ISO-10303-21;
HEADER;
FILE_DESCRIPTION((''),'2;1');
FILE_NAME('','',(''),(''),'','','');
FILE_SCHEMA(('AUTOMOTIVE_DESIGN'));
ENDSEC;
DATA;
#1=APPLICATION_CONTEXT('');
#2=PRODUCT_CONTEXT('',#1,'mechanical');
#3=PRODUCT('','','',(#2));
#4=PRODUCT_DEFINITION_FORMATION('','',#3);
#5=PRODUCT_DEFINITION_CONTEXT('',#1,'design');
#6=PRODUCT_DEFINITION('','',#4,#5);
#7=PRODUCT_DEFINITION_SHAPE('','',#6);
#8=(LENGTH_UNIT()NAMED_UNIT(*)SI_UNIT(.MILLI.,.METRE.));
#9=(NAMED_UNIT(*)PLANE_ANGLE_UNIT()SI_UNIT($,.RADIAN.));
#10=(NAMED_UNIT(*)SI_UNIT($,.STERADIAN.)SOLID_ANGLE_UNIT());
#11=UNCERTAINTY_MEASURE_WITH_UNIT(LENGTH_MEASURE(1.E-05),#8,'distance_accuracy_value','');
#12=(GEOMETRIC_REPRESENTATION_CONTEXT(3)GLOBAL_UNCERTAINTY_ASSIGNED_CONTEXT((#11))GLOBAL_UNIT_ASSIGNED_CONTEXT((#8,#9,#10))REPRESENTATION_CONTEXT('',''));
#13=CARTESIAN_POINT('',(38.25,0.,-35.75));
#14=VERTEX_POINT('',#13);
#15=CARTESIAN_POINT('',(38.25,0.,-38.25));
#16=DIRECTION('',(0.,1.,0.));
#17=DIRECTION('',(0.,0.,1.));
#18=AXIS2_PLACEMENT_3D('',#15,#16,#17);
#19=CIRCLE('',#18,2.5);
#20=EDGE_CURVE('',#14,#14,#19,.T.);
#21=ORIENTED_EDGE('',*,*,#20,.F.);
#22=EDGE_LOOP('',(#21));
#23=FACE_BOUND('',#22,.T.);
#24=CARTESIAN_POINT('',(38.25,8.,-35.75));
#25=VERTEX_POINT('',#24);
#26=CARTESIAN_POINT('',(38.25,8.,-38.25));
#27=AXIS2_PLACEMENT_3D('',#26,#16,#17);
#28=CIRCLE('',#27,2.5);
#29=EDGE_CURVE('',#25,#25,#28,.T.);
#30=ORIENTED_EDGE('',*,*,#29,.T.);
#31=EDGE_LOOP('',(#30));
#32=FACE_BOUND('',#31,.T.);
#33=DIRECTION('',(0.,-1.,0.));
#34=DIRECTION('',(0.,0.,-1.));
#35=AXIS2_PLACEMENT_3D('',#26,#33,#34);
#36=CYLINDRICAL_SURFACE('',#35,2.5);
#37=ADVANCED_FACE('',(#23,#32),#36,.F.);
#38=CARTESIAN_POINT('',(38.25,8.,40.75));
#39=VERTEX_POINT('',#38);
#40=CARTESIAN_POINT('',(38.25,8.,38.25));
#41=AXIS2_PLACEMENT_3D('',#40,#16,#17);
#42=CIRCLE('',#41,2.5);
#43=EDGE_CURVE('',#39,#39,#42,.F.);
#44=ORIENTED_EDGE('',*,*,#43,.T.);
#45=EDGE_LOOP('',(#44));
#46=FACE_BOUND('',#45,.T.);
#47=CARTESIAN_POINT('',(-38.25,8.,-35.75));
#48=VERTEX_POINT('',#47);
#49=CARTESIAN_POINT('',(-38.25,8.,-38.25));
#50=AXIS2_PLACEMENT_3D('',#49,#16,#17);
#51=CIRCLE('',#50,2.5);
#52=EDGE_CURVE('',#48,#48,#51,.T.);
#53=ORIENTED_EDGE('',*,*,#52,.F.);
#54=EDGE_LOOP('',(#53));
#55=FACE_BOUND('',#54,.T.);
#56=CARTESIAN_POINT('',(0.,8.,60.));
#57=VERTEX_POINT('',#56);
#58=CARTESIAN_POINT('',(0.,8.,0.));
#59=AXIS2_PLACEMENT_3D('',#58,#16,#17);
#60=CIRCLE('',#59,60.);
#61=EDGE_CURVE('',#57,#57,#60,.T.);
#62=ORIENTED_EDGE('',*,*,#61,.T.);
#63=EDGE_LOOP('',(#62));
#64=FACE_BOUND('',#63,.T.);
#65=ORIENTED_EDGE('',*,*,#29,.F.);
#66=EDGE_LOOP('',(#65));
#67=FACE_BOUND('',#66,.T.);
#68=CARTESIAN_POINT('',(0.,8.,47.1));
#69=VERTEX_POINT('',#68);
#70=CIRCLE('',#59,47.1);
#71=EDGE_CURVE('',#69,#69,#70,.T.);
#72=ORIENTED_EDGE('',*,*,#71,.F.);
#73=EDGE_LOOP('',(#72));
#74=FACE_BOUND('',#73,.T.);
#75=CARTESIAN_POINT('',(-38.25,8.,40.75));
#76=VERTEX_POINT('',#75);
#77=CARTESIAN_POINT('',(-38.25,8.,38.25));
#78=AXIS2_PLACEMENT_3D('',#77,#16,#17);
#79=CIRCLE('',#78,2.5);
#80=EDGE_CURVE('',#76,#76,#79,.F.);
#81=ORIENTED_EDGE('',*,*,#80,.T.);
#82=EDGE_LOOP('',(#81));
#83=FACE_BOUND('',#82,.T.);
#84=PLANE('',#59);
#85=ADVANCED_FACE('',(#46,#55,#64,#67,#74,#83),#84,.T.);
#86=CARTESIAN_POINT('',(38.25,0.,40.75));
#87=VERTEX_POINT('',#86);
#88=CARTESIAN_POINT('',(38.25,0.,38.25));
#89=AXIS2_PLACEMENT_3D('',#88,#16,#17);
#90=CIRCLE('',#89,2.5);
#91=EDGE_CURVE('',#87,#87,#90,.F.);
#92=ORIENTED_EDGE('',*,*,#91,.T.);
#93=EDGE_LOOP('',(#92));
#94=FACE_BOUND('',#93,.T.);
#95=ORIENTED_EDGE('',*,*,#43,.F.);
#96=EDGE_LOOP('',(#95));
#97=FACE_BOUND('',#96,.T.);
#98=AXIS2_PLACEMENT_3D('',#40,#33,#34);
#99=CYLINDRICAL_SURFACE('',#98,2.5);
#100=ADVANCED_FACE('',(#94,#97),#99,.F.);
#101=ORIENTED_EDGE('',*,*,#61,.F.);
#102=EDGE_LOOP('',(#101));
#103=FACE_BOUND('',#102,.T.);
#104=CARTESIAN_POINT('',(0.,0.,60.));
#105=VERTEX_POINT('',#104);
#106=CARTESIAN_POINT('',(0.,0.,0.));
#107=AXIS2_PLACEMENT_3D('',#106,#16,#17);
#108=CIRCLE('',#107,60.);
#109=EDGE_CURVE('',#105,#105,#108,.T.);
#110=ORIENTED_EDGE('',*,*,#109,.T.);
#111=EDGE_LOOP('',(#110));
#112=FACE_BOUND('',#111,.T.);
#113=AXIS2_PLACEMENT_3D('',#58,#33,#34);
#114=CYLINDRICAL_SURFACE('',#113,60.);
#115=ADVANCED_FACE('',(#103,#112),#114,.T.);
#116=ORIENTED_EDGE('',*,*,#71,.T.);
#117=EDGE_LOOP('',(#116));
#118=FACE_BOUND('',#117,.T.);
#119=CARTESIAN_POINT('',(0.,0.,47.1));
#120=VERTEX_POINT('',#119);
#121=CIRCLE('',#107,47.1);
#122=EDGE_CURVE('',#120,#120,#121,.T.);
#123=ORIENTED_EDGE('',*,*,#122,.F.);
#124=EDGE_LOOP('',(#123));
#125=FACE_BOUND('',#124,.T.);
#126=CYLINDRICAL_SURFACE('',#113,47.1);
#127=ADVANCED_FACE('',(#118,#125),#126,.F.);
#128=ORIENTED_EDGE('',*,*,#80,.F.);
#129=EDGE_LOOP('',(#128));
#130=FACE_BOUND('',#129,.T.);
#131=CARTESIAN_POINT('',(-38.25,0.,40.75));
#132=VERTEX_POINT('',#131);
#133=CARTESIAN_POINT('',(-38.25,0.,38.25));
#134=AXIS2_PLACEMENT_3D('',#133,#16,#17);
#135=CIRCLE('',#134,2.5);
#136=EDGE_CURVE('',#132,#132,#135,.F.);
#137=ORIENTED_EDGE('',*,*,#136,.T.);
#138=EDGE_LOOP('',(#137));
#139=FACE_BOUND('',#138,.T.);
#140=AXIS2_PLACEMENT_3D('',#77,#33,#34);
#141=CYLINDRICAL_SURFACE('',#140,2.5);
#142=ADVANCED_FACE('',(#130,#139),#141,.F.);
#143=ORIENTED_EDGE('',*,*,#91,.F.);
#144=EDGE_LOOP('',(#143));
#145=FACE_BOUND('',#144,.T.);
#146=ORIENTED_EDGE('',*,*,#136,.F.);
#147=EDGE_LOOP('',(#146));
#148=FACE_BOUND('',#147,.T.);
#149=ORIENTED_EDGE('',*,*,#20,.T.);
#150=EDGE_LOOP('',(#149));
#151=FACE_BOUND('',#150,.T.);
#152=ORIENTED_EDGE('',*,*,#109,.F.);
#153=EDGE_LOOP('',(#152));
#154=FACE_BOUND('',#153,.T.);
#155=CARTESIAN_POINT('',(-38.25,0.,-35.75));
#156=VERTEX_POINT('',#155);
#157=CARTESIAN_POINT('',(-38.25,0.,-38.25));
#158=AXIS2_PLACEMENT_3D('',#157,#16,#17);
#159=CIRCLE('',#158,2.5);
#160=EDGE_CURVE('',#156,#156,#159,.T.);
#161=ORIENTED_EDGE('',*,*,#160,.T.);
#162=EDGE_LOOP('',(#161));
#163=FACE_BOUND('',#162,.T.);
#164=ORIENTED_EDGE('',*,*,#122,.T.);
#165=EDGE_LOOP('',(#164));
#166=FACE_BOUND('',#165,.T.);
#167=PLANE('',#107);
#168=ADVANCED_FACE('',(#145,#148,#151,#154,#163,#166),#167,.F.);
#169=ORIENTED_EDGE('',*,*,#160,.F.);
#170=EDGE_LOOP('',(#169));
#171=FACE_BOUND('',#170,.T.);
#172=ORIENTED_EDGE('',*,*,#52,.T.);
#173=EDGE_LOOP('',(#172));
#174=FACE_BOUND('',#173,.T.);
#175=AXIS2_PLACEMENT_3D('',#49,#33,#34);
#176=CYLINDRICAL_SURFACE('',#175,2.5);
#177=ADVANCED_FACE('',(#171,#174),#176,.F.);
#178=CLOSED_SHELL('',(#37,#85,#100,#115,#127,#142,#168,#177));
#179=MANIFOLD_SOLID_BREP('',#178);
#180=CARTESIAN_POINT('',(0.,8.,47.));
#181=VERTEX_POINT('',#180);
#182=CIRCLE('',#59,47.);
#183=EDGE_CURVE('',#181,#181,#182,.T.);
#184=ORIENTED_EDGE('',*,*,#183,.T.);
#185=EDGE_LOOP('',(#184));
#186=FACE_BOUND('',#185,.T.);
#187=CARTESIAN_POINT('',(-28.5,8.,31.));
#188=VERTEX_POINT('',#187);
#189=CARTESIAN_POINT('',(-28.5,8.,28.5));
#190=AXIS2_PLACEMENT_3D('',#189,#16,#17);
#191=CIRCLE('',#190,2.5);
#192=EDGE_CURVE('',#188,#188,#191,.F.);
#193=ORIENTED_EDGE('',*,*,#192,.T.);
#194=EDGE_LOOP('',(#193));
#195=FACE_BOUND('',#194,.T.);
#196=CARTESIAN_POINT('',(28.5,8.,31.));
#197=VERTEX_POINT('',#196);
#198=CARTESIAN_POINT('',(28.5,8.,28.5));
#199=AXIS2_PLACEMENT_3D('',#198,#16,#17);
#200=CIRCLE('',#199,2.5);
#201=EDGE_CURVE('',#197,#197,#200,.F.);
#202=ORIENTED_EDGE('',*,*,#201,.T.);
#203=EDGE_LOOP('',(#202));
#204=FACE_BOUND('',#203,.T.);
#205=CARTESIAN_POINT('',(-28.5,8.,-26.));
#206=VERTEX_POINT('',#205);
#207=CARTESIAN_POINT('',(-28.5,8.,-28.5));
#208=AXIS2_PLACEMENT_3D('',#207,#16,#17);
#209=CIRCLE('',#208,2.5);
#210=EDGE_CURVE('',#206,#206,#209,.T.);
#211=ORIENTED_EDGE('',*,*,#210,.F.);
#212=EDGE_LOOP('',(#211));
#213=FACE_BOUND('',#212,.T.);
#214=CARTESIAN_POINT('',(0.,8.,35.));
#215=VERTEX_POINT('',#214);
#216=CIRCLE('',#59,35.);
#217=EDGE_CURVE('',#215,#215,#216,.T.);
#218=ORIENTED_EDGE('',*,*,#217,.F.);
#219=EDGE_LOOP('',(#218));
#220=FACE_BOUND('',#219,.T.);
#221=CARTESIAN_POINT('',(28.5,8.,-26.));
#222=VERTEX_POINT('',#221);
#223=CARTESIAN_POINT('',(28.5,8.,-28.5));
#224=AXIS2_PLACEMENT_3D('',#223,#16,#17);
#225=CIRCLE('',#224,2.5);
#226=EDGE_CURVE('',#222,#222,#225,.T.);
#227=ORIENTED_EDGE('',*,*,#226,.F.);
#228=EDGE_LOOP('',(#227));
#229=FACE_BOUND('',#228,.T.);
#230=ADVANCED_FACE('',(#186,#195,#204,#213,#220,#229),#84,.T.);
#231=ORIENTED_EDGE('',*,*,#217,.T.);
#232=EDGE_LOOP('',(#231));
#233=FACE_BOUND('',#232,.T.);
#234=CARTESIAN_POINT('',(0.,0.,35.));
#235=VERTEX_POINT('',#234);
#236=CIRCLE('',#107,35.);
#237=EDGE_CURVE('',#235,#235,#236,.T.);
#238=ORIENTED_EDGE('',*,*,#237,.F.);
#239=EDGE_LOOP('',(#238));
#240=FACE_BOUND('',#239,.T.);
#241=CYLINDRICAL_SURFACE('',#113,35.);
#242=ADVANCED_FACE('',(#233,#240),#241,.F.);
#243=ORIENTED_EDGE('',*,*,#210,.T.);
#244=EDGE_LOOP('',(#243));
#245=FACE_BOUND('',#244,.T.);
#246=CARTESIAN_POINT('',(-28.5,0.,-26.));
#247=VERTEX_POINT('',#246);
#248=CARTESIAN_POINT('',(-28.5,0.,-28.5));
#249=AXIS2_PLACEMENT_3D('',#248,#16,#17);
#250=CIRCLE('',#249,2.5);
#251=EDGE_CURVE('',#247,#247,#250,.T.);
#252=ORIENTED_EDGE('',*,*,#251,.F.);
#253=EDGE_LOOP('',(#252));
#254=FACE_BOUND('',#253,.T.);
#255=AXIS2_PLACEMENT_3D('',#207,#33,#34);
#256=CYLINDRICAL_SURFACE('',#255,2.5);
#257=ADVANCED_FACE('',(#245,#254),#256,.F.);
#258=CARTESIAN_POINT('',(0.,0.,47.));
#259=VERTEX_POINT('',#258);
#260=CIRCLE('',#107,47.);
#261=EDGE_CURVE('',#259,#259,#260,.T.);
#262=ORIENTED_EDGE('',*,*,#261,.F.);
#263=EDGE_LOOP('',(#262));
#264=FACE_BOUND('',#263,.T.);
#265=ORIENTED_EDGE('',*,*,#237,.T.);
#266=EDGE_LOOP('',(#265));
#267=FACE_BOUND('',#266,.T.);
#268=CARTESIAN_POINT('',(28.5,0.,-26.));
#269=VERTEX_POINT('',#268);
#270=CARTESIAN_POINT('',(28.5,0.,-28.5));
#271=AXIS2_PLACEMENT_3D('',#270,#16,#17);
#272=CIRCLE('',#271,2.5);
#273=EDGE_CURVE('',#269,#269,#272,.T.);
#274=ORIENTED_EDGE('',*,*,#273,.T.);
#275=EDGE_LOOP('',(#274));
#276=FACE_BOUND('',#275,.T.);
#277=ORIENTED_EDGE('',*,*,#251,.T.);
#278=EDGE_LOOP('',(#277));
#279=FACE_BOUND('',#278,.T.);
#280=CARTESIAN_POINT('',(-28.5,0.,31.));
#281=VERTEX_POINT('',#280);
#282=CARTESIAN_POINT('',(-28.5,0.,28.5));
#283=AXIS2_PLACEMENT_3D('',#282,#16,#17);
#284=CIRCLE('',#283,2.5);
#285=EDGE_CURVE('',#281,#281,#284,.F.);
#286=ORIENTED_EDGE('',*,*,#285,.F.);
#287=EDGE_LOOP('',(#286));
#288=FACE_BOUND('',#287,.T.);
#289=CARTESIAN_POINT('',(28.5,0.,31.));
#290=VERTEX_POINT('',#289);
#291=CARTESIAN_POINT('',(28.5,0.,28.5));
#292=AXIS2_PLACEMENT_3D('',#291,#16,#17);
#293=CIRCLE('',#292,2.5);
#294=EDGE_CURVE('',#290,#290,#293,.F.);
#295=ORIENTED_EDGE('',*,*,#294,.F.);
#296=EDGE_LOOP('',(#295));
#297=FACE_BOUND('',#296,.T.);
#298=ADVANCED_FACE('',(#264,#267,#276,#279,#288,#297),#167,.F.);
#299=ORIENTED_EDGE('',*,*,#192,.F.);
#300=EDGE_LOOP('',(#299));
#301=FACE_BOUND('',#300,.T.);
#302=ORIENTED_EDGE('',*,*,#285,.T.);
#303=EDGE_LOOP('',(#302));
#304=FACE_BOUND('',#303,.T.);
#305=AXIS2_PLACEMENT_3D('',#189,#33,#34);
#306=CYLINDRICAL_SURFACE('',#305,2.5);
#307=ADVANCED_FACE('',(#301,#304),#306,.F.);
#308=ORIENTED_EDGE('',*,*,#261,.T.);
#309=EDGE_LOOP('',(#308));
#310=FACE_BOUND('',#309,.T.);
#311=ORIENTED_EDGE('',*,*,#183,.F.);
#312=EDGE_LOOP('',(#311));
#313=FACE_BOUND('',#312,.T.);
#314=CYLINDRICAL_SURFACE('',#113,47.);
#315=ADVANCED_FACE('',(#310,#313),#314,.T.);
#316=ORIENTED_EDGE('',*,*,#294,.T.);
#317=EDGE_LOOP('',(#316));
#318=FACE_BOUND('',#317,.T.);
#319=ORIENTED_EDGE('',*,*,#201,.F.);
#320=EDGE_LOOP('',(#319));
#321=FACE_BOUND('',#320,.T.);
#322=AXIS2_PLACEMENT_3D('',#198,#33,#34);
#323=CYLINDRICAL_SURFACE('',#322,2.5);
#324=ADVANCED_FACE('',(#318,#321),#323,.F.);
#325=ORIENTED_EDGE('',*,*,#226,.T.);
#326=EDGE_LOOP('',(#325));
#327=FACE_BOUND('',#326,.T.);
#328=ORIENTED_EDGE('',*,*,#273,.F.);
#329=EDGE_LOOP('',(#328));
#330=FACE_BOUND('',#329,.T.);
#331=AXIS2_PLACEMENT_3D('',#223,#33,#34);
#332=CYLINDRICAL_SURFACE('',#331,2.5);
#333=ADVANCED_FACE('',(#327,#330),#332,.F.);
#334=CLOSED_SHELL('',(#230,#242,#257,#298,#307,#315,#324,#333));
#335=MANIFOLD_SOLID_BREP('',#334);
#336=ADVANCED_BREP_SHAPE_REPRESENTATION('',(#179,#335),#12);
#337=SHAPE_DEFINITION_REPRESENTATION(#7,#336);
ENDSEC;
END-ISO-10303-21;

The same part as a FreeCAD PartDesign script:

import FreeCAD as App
import Part
import Sketcher

V = App.Vector
Q = App.Units.Quantity

doc = App.newDocument("Part")
body = doc.addObject("PartDesign::Body", "Body")

# Sketch on XZ plane
sketch1 = body.newObject("Sketcher::SketchObject", "Sketch")
sketch1.AttachmentSupport = (doc.getObject("XZ_Plane"), [""])
sketch1.MapMode = "FlatFace"
sketch1.addGeometry(Part.Circle(V(0, 0, 0), V(0, 0, 1), 47), False)
sketch1.addGeometry(Part.Circle(V(-28.5, -28.5, 0), V(0, 0, 1), 2.5), False)
sketch1.addGeometry(Part.Circle(V(-28.5, 28.5, 0), V(0, 0, 1), 2.5), False)
sketch1.addGeometry(Part.Circle(V(28.5, -28.5, 0), V(0, 0, 1), 2.5), False)
sketch1.addGeometry(Part.Circle(V(0, 0, 0), V(0, 0, 1), 35), False)
sketch1.addGeometry(Part.Circle(V(28.5, 28.5, 0), V(0, 0, 1), 2.5), False)
sketch1.addConstraint(Sketcher.Constraint("Coincident", 0, 3, -1, 1))
sketch1.addConstraint(Sketcher.Constraint("Coincident", 4, 3, -1, 1))
sketch1.addConstraint(Sketcher.Constraint("Equal", 1, 2))
sketch1.addConstraint(Sketcher.Constraint("Equal", 2, 3))
sketch1.addConstraint(Sketcher.Constraint("Equal", 3, 5))
sketch1.addConstraint(Sketcher.Constraint("Symmetric", 2, 3, 3, 3, -1, 1))
sketch1.addConstraint(Sketcher.Constraint("Symmetric", 1, 3, 5, 3, -1, 1))
sketch1.addConstraint(Sketcher.Constraint("Symmetric", 1, 3, 3, 3, -2))
sketch1.addConstraint(Sketcher.Constraint("Diameter", 0, Q("94 mm")))
sketch1.addConstraint(Sketcher.Constraint("Diameter", 1, Q("5 mm")))
sketch1.addConstraint(Sketcher.Constraint("Diameter", 4, Q("70 mm")))
sketch1.addConstraint(Sketcher.Constraint("DistanceY", 1, 3, 2, 3, Q("57 mm")))
sketch1.addConstraint(Sketcher.Constraint("DistanceX", 1, 3, 3, 3, Q("57 mm")))
pad1 = body.newObject("PartDesign::Pad", "Pad")
pad1.Profile = sketch1
pad1.Length = 8
pad1.Reversed = True
body2 = doc.addObject("PartDesign::Body", "Body001")

# Sketch on XZ plane
sketch2 = body2.newObject("Sketcher::SketchObject", "Sketch001")
sketch2.AttachmentSupport = (doc.getObject("XZ_Plane001"), [""])
sketch2.MapMode = "FlatFace"
sketch2.addGeometry(Part.Circle(V(0, 0, 0), V(0, 0, 1), 60), False)
sketch2.addGeometry(Part.Circle(V(-38.2, -38.2, 0), V(0, 0, 1), 2.5), False)
sketch2.addGeometry(Part.Circle(V(-38.2, 38.2, 0), V(0, 0, 1), 2.5), False)
sketch2.addGeometry(Part.Circle(V(38.2, -38.2, 0), V(0, 0, 1), 2.5), False)
sketch2.addGeometry(Part.Circle(V(0, 0, 0), V(0, 0, 1), 47.1), False)
sketch2.addGeometry(Part.Circle(V(38.2, 38.2, 0), V(0, 0, 1), 2.5), False)
sketch2.addConstraint(Sketcher.Constraint("Coincident", 0, 3, -1, 1))
sketch2.addConstraint(Sketcher.Constraint("Coincident", 4, 3, -1, 1))
sketch2.addConstraint(Sketcher.Constraint("Equal", 1, 2))
sketch2.addConstraint(Sketcher.Constraint("Equal", 2, 3))
sketch2.addConstraint(Sketcher.Constraint("Equal", 3, 5))
sketch2.addConstraint(Sketcher.Constraint("Symmetric", 2, 3, 3, 3, -1, 1))
sketch2.addConstraint(Sketcher.Constraint("Symmetric", 1, 3, 5, 3, -1, 1))
sketch2.addConstraint(Sketcher.Constraint("Symmetric", 1, 3, 3, 3, -2))
sketch2.addConstraint(Sketcher.Constraint("Diameter", 0, Q("120 mm")))
sketch2.addConstraint(Sketcher.Constraint("Diameter", 1, Q("5 mm")))
sketch2.addConstraint(Sketcher.Constraint("Diameter", 4, Q("94.2 mm")))
sketch2.addConstraint(Sketcher.Constraint("DistanceY", 1, 3, 2, 3, Q("76.5 mm")))
sketch2.addConstraint(Sketcher.Constraint("DistanceX", 1, 3, 3, 3, Q("76.5 mm")))
pad2 = body2.newObject("PartDesign::Pad", "Pad001")
pad2.Profile = sketch2
pad2.Length = 8
pad2.Reversed = True

doc.recompute()
